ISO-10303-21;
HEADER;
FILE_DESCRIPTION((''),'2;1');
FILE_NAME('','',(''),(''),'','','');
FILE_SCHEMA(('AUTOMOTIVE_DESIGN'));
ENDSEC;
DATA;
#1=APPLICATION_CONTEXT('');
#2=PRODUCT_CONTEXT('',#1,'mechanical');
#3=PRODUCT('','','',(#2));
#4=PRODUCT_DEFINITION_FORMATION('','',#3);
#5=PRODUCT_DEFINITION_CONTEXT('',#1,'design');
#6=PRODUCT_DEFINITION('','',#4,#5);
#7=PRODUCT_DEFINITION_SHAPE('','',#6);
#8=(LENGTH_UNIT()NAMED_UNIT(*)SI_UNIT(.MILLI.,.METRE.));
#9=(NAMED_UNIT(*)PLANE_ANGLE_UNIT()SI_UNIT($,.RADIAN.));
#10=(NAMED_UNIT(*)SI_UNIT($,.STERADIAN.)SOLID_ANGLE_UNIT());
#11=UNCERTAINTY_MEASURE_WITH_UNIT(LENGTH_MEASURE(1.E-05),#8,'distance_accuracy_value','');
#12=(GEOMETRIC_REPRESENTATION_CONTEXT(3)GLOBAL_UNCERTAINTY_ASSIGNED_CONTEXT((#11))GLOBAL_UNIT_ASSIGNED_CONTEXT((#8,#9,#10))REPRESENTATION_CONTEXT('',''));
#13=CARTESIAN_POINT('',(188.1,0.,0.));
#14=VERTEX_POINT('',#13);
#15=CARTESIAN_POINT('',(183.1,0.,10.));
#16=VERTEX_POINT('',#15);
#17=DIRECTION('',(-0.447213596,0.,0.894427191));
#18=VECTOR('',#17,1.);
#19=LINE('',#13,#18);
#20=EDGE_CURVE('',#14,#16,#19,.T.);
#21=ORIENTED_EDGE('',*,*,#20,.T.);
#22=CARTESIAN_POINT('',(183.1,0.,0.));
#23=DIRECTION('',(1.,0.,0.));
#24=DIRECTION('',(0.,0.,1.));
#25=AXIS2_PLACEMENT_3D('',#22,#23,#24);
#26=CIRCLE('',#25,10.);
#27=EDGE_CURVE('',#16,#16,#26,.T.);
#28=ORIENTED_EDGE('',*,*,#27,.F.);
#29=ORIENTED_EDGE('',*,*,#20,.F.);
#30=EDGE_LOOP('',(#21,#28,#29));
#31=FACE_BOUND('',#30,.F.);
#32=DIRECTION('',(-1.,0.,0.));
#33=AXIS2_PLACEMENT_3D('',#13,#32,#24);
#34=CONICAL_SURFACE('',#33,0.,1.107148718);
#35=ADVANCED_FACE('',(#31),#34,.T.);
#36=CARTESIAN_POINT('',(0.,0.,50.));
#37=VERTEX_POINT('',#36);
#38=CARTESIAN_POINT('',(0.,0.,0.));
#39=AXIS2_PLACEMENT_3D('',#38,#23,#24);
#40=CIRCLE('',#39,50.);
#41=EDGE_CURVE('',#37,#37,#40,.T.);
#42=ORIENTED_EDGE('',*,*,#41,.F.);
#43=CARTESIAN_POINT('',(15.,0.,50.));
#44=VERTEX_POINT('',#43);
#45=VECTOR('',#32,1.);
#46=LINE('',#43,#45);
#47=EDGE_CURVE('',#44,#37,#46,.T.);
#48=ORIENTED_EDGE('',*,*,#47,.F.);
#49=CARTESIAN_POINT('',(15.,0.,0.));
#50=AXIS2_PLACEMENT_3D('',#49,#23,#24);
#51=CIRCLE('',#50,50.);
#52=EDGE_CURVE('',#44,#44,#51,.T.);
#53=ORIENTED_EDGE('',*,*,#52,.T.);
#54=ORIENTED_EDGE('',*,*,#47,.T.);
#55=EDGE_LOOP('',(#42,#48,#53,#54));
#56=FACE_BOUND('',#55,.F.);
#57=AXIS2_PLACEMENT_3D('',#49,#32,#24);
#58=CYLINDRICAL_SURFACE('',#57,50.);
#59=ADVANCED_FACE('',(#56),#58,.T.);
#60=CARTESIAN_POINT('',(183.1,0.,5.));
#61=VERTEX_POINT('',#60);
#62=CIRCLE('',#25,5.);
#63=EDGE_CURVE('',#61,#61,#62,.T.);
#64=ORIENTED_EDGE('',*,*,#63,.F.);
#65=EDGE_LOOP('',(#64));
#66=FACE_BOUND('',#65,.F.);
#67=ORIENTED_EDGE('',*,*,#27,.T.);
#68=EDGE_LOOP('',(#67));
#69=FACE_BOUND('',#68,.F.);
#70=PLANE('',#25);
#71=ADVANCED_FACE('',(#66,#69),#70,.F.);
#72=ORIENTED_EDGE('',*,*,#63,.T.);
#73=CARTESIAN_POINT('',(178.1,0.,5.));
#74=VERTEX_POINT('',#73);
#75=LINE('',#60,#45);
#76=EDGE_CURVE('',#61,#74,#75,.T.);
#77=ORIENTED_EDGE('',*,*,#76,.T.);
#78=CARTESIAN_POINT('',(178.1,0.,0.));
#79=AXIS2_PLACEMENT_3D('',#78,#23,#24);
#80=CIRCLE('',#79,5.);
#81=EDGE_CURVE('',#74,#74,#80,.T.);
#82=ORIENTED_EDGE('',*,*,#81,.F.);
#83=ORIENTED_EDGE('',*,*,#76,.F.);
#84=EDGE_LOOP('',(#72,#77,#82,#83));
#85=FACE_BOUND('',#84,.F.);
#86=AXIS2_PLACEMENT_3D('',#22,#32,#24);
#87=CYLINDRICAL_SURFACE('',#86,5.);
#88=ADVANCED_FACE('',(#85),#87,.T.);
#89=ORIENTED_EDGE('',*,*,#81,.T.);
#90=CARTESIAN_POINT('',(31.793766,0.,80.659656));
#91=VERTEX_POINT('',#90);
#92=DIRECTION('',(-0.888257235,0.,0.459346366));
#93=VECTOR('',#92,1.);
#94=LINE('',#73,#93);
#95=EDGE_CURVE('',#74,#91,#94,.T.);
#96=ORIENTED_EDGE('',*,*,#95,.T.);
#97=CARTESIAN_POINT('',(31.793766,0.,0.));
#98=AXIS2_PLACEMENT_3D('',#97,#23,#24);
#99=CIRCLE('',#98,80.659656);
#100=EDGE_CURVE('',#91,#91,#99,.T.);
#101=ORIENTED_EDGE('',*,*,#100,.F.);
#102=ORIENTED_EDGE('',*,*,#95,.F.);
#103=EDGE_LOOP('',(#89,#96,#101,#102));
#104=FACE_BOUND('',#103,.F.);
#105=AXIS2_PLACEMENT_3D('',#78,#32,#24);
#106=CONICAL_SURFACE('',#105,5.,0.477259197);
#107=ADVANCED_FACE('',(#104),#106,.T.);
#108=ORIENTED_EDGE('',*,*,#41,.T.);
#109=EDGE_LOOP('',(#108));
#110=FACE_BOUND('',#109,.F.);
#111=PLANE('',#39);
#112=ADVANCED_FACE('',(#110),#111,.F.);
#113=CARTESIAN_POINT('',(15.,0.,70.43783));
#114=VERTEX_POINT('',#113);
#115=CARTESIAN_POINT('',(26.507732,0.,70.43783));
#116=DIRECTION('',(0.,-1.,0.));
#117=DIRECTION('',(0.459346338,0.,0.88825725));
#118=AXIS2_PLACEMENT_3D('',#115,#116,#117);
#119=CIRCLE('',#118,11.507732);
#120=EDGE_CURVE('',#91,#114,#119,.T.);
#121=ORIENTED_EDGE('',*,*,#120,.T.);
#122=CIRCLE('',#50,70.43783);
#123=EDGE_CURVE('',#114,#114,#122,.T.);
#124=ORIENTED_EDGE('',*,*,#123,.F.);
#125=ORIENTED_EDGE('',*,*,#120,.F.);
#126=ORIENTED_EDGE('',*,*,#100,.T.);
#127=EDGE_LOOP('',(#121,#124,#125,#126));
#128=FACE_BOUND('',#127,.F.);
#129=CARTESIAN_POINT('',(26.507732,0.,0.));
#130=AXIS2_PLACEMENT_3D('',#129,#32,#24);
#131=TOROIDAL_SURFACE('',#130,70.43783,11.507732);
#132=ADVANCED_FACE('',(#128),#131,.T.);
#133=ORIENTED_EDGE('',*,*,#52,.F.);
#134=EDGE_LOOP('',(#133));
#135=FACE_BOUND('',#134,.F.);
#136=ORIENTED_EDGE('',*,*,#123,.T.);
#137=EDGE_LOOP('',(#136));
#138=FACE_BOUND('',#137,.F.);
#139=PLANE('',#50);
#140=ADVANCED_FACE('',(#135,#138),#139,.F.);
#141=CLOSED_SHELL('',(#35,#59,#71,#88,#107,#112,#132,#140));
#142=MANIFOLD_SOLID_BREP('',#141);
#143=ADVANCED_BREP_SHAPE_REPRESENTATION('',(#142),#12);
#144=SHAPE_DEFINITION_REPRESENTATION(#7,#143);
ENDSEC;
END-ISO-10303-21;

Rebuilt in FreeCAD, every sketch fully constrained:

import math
import FreeCAD as App
import Part
import Sketcher

V = App.Vector
Q = App.Units.Quantity

doc = App.newDocument("Part")
body = doc.addObject("PartDesign::Body", "Body")

# Sketch on XZ plane
sketch1 = doc.addObject("Sketcher::SketchObject", "Sketch")
body.addObject(sketch1)
sketch1.AttachmentSupport = (doc.XZ_Plane, [""])
sketch1.MapMode = "FlatFace"
sketch1.addGeometry([
    Part.LineSegment(V(0, 50, 0), V(0, 0, 0)),  # 0
    Part.LineSegment(V(0, 0, 0), V(188.1, 0, 0)),  # 1
    Part.LineSegment(V(188.1, 0, 0), V(183.1, 10, 0)),  # 2
    Part.LineSegment(V(183.1, 10, 0), V(183.1, 5, 0)),  # 3
    Part.LineSegment(V(183.1, 5, 0), V(178.1, 5, 0)),  # 4
    Part.LineSegment(V(178.1, 5, 0), V(31.793766, 80.659656, 0)),  # 5
    Part.ArcOfCircle(Part.Circle(V(26.507732, 70.43783, 0), V(0, 0, 1), 11.507732), math.radians(62.655064), math.radians(180)),  # 6
    Part.LineSegment(V(15, 70.43783, 0), V(15, 50, 0)),  # 7
    Part.LineSegment(V(15, 50, 0), V(0, 50, 0)),  # 8
], False)
sketch1.addConstraint([
    Sketcher.Constraint("Coincident", 0, 2, 1, 1),
    Sketcher.Constraint("Coincident", 1, 2, 2, 1),
    Sketcher.Constraint("Coincident", 2, 2, 3, 1),
    Sketcher.Constraint("Coincident", 3, 2, 4, 1),
    Sketcher.Constraint("Coincident", 4, 2, 5, 1),
    Sketcher.Constraint("Tangent", 5, 2, 6, 1),
    Sketcher.Constraint("Tangent", 6, 2, 7, 1),
    Sketcher.Constraint("Coincident", 7, 2, 8, 1),
    Sketcher.Constraint("Coincident", 8, 2, 0, 1),
    Sketcher.Constraint("Vertical", 0),
    Sketcher.Constraint("Horizontal", 1),
    Sketcher.Constraint("Vertical", 3),
    Sketcher.Constraint("Horizontal", 4),
    Sketcher.Constraint("Vertical", 7),
    Sketcher.Constraint("Horizontal", 8),
    Sketcher.Constraint("Coincident", 0, 2, -1, 1),
    Sketcher.Constraint("Equal", 4, 3),
    Sketcher.Constraint("DistanceX", 4, 2, 4, 1, Q("5 mm")),
    Sketcher.Constraint("DistanceX", 8, 2, 8, 1, Q("15 mm")),
    Sketcher.Constraint("DistanceY", 0, 2, 0, 1, Q("50 mm")),
    Sketcher.Constraint("DistanceX", 1, 1, 1, 2, Q("188.1 mm")),
    Sketcher.Constraint("DistanceY", -1, 1, 2, 2, Q("10 mm")),
    Sketcher.Constraint("DistanceX", 2, 2, 1, 2, Q("5 mm")),
    Sketcher.Constraint("Radius", 6, Q("11.507732 mm")),
    Sketcher.Constraint("DistanceY", 7, 2, 7, 1, Q("20.43783 mm")),
])
revolution = doc.addObject("PartDesign::Revolution", "Revolution")
body.addObject(revolution)
revolution.Profile = sketch1
revolution.ReferenceAxis = (sketch1, ["H_Axis"])
revolution.Angle = 360

doc.recompute()
